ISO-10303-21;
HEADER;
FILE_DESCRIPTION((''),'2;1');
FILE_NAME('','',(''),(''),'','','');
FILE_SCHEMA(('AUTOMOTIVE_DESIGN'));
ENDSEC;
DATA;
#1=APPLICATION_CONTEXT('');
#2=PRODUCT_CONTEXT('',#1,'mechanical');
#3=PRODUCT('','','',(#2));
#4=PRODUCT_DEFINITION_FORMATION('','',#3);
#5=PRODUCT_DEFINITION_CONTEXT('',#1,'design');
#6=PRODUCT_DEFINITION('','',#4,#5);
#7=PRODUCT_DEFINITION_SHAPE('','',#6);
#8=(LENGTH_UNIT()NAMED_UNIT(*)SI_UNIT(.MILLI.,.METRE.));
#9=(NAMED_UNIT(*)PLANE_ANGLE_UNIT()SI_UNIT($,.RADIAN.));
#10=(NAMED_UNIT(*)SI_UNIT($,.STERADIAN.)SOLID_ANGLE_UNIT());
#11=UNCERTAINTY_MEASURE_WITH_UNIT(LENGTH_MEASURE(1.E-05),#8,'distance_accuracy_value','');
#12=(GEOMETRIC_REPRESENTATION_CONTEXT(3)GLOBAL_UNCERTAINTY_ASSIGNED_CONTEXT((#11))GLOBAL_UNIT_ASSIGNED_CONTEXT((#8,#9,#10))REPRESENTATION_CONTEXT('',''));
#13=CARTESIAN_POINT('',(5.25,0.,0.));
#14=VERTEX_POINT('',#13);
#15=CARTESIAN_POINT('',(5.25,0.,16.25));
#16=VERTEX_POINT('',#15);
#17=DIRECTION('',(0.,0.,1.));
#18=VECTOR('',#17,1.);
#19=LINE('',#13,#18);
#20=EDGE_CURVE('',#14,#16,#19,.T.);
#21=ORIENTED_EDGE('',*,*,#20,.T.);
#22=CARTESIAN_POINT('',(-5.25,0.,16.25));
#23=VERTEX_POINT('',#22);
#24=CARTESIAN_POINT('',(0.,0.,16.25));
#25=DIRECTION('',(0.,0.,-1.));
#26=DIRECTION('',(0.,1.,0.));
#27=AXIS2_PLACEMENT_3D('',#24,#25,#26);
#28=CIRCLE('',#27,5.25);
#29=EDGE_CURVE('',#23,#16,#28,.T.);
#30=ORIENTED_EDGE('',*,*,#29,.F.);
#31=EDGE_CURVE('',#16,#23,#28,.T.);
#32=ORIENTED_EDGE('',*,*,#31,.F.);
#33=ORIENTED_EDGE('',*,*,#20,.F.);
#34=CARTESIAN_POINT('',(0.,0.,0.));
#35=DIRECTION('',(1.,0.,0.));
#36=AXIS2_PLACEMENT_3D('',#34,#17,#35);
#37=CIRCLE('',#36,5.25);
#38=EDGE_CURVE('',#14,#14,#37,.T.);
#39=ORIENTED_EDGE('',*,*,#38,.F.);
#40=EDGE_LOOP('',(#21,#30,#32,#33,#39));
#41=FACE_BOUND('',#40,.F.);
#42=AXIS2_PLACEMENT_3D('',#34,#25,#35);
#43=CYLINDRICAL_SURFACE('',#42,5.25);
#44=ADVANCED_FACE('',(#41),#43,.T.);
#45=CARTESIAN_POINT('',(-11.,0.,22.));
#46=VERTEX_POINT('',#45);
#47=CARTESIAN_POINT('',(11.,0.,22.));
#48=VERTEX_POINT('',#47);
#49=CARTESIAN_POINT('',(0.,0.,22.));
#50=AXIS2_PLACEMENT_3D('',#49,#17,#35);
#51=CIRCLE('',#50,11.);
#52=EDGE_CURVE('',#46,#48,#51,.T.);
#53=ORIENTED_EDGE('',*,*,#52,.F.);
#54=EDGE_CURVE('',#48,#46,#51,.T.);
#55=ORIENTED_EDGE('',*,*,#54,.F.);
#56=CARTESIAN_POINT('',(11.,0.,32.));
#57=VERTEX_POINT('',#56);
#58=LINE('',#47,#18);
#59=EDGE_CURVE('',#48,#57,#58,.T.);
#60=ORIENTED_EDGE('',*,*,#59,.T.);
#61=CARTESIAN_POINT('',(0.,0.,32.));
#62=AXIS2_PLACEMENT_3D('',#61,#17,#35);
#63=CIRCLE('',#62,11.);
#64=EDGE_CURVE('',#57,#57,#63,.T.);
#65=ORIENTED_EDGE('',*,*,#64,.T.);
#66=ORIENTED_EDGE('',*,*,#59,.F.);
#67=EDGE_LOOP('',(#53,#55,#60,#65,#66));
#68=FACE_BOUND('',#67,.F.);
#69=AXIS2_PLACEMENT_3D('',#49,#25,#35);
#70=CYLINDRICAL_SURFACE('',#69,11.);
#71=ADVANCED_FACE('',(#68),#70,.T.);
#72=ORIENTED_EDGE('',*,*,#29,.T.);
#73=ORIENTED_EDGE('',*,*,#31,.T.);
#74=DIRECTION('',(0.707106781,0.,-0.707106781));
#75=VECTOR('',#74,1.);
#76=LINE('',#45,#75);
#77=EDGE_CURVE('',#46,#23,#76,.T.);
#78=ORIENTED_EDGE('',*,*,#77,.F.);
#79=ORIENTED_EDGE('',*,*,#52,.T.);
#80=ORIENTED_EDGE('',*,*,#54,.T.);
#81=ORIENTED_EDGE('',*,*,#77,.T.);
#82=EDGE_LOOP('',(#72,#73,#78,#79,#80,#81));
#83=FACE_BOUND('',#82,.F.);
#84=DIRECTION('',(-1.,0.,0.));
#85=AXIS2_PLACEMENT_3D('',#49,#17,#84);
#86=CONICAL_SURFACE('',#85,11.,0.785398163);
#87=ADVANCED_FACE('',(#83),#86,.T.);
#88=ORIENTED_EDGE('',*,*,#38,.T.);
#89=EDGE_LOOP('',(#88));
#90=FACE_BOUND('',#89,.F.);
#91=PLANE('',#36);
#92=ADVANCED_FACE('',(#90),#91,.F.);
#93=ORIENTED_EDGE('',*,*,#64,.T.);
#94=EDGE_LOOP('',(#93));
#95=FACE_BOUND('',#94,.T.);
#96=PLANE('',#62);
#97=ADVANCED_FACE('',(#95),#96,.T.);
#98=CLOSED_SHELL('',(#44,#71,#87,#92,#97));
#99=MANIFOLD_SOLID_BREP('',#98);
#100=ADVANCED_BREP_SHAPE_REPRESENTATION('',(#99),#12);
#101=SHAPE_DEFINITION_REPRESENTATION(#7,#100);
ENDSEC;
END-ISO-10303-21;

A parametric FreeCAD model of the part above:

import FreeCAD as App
import Part
import Sketcher
from FreeCAD import Vector

doc = App.newDocument("Part")
params = doc.addObject("Spreadsheet::Sheet", "Params")
for row, (alias, value) in enumerate([
    ("sketch1_diameter", "10.5 mm"),
    ("pad1_length", "22 mm"),
    ("sketch2_diameter", "22 mm"),
    ("pad2_length", "10 mm"),
    ("sketch3_width", "11 mm"),
    ("revolution_angle", "360 deg"),
], start=1):
    params.set(f"A{row}", alias)
    params.set(f"B{row}", "=" + value)
    params.setAlias(f"B{row}", alias)

body = doc.addObject("PartDesign::Body", "Body")

# Sketch on XY plane
sketch1 = body.newObject("Sketcher::SketchObject", "Sketch")
sketch1.AttachmentSupport = (doc.getObject("XY_Plane"), [""])
sketch1.MapMode = "FlatFace"
sketch1.addGeometry(Part.Circle(Vector(0, 0, 0), Vector(0, 0, 1), 5.25), False)
sketch1.addConstraint([
    Sketcher.Constraint("Coincident", 0, 3, -1, 1),
    Sketcher.Constraint("Diameter", 0, 10.5),
])
sketch1.setExpression("Constraints[1]", "Params.sketch1_diameter")
pad1 = body.newObject("PartDesign::Pad", "Pad")
pad1.Profile = sketch1
pad1.setExpression("Length", "Params.pad1_length")

# Sketch on XY plane
sketch2 = body.newObject("Sketcher::SketchObject", "Sketch001")
sketch2.AttachmentSupport = (doc.getObject("XY_Plane"), [""])
sketch2.MapMode = "FlatFace"
sketch2.AttachmentOffset = App.Placement(Vector(0, 0, 22), App.Rotation())
sketch2.addGeometry(Part.Circle(Vector(0, 0, 0), Vector(0, 0, 1), 11), False)
sketch2.addConstraint([
    Sketcher.Constraint("Coincident", 0, 3, -1, 1),
    Sketcher.Constraint("Diameter", 0, 22.0),
])
sketch2.setExpression("Constraints[1]", "Params.sketch2_diameter")
pad2 = body.newObject("PartDesign::Pad", "Pad001")
pad2.Profile = sketch2
pad2.setExpression("Length", "Params.pad2_length")

# Sketch on XZ plane
sketch3 = body.newObject("Sketcher::SketchObject", "Sketch002")
sketch3.AttachmentSupport = (doc.getObject("XZ_Plane"), [""])
sketch3.MapMode = "FlatFace"
sketch3.addGeometry([
    Part.LineSegment(Vector(0, 11, 0), Vector(0, 22, 0)),
    Part.LineSegment(Vector(0, 22, 0), Vector(-11, 22, 0)),
    Part.LineSegment(Vector(-11, 22, 0), Vector(0, 11, 0)),
], False)
sketch3.addConstraint([
    Sketcher.Constraint("Coincident", 0, 2, 1, 1),
    Sketcher.Constraint("Coincident", 1, 2, 2, 1),
    Sketcher.Constraint("Coincident", 2, 2, 0, 1),
    Sketcher.Constraint("Vertical", 0),
    Sketcher.Constraint("Horizontal", 1),
    Sketcher.Constraint("PointOnObject", 0, 2, -2),
    Sketcher.Constraint("Equal", 1, 0),
    Sketcher.Constraint("DistanceX", 1, 2, 1, 1, 11.0),
    Sketcher.Constraint("DistanceY", -1, 1, 0, 2, 22.0),
])
sketch3.setExpression("Constraints[7]", "Params.sketch3_width")
revolution = body.newObject("PartDesign::Revolution", "Revolution")
revolution.Profile = sketch3
revolution.ReferenceAxis = (sketch3, ["V_Axis"])
revolution.setExpression("Angle", "Params.revolution_angle")

doc.recompute()
